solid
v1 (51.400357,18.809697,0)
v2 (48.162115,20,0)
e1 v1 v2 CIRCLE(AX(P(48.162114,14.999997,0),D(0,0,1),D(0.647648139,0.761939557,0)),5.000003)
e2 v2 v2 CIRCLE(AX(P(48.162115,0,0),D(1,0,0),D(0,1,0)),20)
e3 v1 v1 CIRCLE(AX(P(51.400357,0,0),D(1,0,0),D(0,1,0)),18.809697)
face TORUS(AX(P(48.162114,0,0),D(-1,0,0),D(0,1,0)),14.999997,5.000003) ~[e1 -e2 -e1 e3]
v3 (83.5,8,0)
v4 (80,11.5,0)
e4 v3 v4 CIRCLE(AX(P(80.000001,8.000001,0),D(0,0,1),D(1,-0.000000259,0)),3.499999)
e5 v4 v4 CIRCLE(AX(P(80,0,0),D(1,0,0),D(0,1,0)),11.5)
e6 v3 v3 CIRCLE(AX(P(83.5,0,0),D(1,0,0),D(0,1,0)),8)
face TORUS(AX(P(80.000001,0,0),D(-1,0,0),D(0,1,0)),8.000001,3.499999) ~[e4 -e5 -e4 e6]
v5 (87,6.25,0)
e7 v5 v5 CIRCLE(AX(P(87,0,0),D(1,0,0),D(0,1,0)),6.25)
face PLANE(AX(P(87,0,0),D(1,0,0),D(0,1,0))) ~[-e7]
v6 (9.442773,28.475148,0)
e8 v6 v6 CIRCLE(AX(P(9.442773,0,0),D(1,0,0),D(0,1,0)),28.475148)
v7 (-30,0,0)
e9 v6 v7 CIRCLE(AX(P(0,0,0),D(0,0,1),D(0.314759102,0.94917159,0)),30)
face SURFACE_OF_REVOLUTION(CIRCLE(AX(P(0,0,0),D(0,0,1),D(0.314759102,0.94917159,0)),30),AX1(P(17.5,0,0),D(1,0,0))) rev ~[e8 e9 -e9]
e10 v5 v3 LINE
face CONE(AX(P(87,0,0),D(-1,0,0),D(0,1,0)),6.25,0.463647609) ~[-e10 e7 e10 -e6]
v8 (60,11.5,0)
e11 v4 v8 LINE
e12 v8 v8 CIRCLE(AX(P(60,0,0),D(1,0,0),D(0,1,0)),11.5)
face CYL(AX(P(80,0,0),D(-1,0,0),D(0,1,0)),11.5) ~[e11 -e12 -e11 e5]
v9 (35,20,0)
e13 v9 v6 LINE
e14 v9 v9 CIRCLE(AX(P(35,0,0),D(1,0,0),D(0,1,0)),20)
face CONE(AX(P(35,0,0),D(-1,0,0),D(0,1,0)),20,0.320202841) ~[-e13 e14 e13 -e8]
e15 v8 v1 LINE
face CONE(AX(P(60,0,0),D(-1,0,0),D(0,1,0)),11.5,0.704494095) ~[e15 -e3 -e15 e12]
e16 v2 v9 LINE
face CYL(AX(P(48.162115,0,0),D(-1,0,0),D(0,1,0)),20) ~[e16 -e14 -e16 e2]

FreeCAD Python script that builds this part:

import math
import FreeCAD as App
import Part
import Sketcher

V = App.Vector

doc = App.newDocument("Part")
body = doc.addObject("PartDesign::Body", "Body")

# Sketch on XY plane
sketch1 = doc.addObject("Sketcher::SketchObject", "Sketch")
body.addObject(sketch1)
sketch1.AttachmentSupport = (doc.XY_Plane, [""])
sketch1.MapMode = "FlatFace"
sketch1.addGeometry(Part.LineSegment(V(48.162115, 20, 0), V(35, 20, 0)), False)
sketch1.addGeometry(Part.LineSegment(V(35, 20, 0), V(9.442773, 28.475148, 0)), False)
sketch1.addGeometry(Part.ArcOfCircle(Part.Circle(V(0, 0, 0), V(0, 0, 1), 30), math.radians(71.653728), math.radians(180.000001)), False)
sketch1.addGeometry(Part.LineSegment(V(-30, 0, 0), V(87, 0, 0)), False)
sketch1.addGeometry(Part.LineSegment(V(87, 0, 0), V(87, 6.25, 0)), False)
sketch1.addGeometry(Part.LineSegment(V(87, 6.25, 0), V(83.5, 8, 0)), False)
sketch1.addGeometry(Part.ArcOfCircle(Part.Circle(V(80.000001, 8.000001, 0), V(0, 0, 1), 3.499999), math.radians(-0.000015), math.radians(90.000015)), False)
sketch1.addGeometry(Part.LineSegment(V(80, 11.5, 0), V(60, 11.5, 0)), False)
sketch1.addGeometry(Part.LineSegment(V(60, 11.5, 0), V(51.400357, 18.809697, 0)), False)
sketch1.addGeometry(Part.ArcOfCircle(Part.Circle(V(48.162114, 14.999997, 0), V(0, 0, 1), 5.000003), math.radians(49.635485), math.radians(89.999991)), False)
sketch1.addConstraint(Sketcher.Constraint("Coincident", 0, 2, 1, 1))
sketch1.addConstraint(Sketcher.Constraint("Tangent", 1, 2, 2, 1))
sketch1.addConstraint(Sketcher.Constraint("Coincident", 2, 2, 3, 1))
sketch1.addConstraint(Sketcher.Constraint("Coincident", 3, 2, 4, 1))
sketch1.addConstraint(Sketcher.Constraint("Coincident", 4, 2, 5, 1))
sketch1.addConstraint(Sketcher.Constraint("Coincident", 5, 2, 6, 1))
sketch1.addConstraint(Sketcher.Constraint("Tangent", 6, 2, 7, 1))
sketch1.addConstraint(Sketcher.Constraint("Coincident", 7, 2, 8, 1))
sketch1.addConstraint(Sketcher.Constraint("Tangent", 8, 2, 9, 1))
sketch1.addConstraint(Sketcher.Constraint("Tangent", 9, 2, 0, 1))
sketch1.addConstraint(Sketcher.Constraint("Horizontal", 0))
sketch1.addConstraint(Sketcher.Constraint("Horizontal", 3))
sketch1.addConstraint(Sketcher.Constraint("Vertical", 4))
sketch1.addConstraint(Sketcher.Constraint("Horizontal", 7))
sketch1.addConstraint(Sketcher.Constraint("Coincident", 2, 3, -1, 1))
sketch1.addConstraint(Sketcher.Constraint("PointOnObject", 2, 2, -1))
sketch1.addConstraint(Sketcher.Constraint("Horizontal", 6, 3, 5, 2))
sketch1.addConstraint(Sketcher.Constraint("Radius", 2, 30.0))
sketch1.addConstraint(Sketcher.Constraint("Radius", 6, 3.499999))
sketch1.addConstraint(Sketcher.Constraint("DistanceX", 3, 1, 3, 2, 117.0))
sketch1.addConstraint(Sketcher.Constraint("DistanceX", 7, 2, 7, 1, 20.0))
sketch1.addConstraint(Sketcher.Constraint("DistanceX", -1, 1, 6, 3, 80.000001))
sketch1.addConstraint(Sketcher.Constraint("DistanceY", -1, 1, 6, 3, 8.000001))
sketch1.addConstraint(Sketcher.Constraint("DistanceX", -1, 1, 0, 2, 35.0))
sketch1.addConstraint(Sketcher.Constraint("DistanceY", -1, 1, 0, 2, 20.0))
sketch1.addConstraint(Sketcher.Constraint("DistanceY", 4, 1, 4, 2, 6.25))
sketch1.addConstraint(Sketcher.Constraint("Radius", 9, 5.000003))
sketch1.addConstraint(Sketcher.Constraint("DistanceY", 9, 3, 8, 2, 3.8097))
revolution = doc.addObject("PartDesign::Revolution", "Revolution")
body.addObject(revolution)
revolution.Profile = sketch1
revolution.ReferenceAxis = (sketch1, ["H_Axis"])
revolution.Angle = 360

doc.recompute()
